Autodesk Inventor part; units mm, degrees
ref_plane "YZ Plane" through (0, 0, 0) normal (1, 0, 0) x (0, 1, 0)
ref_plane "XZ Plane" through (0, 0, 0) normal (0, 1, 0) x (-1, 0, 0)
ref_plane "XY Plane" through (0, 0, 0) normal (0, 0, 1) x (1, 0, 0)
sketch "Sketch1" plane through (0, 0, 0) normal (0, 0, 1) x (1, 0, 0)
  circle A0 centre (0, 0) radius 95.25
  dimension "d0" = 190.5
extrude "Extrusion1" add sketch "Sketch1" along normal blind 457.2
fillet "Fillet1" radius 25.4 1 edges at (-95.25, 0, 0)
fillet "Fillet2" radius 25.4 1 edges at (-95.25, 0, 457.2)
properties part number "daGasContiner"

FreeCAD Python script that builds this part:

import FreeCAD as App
import Part
import Sketcher
from FreeCAD import Vector
Q = App.Units.Quantity


def edges_at(feature, points):
    """Names of the edges that pass closest to the given points."""
    edges = feature.Shape.Edges
    near = lambda p: min(range(len(edges)), key=lambda i: edges[i].distToShape(Part.Vertex(*p))[0])
    return sorted({f"Edge{near(p) + 1}" for p in points})

doc = App.newDocument("Part")
body = doc.addObject("PartDesign::Body", "Body")

# Sketch on XY plane
sketch1 = body.newObject("Sketcher::SketchObject", "Sketch")
sketch1.AttachmentSupport = (doc.getObject("XY_Plane"), [""])
sketch1.MapMode = "FlatFace"
sketch1.addGeometry(Part.Circle(Vector(0, 0, 0), Vector(0, 0, 1), 95), False)
sketch1.addConstraint([
    Sketcher.Constraint("Coincident", 0, 3, -1, 1),
    Sketcher.Constraint("Diameter", 0, Q("7.5 in")),
])
pad1 = body.newObject("PartDesign::Pad", "Pad")
pad1.Profile = sketch1
pad1.Length = Q("18 in")
doc.recompute()

fillet = body.newObject("PartDesign::Fillet", "Fillet")
fillet.Base = (pad1, edges_at(pad1, [(-95.25, 0, 0)]))
fillet.Radius = Q("1 in")
doc.recompute()

fillet2 = body.newObject("PartDesign::Fillet", "Fillet001")
fillet2.Base = (fillet, edges_at(fillet, [(-95.25, 0, 457.2)]))
fillet2.Radius = Q("1 in")

doc.recompute()
